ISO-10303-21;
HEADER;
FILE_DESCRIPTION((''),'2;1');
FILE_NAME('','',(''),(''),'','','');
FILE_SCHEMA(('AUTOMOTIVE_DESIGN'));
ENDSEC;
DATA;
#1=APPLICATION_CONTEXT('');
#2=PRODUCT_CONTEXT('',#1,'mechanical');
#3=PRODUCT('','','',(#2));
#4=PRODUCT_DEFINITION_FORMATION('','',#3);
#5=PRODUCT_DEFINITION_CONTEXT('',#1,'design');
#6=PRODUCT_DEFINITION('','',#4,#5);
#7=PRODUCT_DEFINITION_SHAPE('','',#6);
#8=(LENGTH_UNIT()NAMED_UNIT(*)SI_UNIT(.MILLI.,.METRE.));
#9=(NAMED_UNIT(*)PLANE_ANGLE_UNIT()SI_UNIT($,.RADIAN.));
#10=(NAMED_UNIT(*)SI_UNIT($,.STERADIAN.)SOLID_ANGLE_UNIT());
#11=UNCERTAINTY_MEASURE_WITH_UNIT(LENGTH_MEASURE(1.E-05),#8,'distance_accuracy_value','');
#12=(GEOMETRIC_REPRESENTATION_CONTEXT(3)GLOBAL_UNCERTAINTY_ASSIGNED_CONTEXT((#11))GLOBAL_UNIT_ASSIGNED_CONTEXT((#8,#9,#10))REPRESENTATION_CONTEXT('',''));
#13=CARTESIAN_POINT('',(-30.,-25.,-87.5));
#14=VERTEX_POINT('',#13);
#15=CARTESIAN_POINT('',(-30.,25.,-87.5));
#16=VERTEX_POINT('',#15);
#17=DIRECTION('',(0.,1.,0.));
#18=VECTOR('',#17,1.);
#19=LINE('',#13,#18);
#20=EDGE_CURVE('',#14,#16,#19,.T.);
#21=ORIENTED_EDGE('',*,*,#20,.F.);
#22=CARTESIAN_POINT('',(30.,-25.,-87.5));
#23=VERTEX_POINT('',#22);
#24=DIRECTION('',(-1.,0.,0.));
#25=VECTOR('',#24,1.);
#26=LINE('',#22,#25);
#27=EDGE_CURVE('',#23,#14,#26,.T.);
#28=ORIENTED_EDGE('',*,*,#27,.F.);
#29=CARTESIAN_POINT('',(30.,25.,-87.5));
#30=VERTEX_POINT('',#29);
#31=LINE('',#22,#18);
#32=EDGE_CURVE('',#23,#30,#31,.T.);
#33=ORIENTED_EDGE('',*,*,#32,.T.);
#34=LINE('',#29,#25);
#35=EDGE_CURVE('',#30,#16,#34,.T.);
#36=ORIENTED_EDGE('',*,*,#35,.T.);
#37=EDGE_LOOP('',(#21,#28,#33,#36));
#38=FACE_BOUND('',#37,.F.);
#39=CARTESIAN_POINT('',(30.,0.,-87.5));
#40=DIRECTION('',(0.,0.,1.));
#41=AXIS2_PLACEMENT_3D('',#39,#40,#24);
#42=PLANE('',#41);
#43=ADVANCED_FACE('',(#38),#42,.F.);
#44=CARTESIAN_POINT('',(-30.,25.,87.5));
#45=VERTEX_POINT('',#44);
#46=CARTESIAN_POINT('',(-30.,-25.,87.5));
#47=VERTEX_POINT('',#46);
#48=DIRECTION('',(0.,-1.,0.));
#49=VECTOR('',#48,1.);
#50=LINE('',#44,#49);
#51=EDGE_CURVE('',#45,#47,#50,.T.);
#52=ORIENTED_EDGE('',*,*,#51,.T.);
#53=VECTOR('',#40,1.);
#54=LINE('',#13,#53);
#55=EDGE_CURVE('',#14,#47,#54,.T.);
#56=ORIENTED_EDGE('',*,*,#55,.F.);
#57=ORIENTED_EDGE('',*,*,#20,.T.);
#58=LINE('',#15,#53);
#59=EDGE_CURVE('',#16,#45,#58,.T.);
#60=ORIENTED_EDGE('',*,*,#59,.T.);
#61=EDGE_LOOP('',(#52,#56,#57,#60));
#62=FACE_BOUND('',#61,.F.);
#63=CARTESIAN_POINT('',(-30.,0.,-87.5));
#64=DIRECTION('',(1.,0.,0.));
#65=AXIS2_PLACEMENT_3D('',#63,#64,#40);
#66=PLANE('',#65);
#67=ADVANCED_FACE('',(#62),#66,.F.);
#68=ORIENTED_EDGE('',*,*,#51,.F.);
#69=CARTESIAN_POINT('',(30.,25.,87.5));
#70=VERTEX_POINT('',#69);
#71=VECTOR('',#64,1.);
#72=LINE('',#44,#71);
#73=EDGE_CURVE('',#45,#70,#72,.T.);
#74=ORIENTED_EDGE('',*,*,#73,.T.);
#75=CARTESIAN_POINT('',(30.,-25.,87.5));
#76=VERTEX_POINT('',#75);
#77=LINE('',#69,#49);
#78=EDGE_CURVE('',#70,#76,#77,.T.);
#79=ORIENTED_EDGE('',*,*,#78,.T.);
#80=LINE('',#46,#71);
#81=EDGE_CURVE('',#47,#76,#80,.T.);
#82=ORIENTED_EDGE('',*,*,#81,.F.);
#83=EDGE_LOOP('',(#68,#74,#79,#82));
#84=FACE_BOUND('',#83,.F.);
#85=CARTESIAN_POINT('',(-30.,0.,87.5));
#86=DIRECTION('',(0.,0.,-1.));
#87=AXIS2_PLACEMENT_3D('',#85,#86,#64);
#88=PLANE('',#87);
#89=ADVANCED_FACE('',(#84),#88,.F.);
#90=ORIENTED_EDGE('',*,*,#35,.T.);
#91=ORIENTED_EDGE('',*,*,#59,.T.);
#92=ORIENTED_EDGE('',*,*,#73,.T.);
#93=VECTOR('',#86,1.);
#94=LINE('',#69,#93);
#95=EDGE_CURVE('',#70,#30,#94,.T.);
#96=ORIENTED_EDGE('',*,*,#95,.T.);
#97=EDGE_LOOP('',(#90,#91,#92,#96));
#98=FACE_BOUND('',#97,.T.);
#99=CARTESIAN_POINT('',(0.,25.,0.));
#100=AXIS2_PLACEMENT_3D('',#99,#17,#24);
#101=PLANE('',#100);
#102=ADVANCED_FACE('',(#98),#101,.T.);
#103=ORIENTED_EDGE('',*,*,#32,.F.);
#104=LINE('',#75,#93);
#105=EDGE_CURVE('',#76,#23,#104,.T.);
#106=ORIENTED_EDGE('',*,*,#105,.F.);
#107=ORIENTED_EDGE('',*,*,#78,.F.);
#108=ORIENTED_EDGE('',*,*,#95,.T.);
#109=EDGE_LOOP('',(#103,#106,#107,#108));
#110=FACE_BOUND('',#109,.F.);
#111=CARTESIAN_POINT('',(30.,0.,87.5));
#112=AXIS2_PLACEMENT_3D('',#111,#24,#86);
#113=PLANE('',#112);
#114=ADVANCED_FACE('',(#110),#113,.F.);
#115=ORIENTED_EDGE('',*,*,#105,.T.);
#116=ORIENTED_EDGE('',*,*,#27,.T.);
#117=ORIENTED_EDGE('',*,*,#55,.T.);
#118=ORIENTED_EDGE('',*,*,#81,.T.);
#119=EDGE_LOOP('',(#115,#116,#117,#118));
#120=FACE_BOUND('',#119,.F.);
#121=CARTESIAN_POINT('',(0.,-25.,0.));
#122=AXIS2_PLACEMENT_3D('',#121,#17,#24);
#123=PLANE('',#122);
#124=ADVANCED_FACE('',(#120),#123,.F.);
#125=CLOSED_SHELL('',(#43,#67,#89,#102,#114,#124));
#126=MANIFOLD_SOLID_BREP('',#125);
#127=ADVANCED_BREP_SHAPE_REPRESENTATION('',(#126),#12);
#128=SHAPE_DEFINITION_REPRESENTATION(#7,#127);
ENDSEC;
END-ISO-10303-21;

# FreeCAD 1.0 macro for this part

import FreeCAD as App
import Part
import Sketcher
from FreeCAD import Vector


def add_polygon(sketch, points):
    """Adds a closed chain of lines whose ends are joined by coincident constraints."""
    first, n = sketch.GeometryCount, len(points)
    for a, b in zip(points, points[1:] + points[:1]):
        sketch.addGeometry(Part.LineSegment(App.Vector(*a, 0), App.Vector(*b, 0)), False)
    for i in range(n):
        sketch.addConstraint(Sketcher.Constraint("Coincident", first + i, 2, first + (i + 1) % n, 1))

doc = App.newDocument("Part")
body = doc.addObject("PartDesign::Body", "Body")

sketch1 = body.newObject("Sketcher::SketchObject", "Sketch")
sketch1.AttachmentSupport = (doc.getObject("XZ_Plane"), [""])
sketch1.MapMode = "FlatFace"
add_polygon(sketch1, [(30, 88), (30, -88), (-30, -88), (-30, 88)])
sketch1.addConstraint([
    Sketcher.Constraint("Vertical", 0),
    Sketcher.Constraint("Horizontal", 1),
    Sketcher.Constraint("Vertical", 2),
    Sketcher.Constraint("Horizontal", 3),
    Sketcher.Constraint("Symmetric", 0, 2, 2, 2, -1, 1),
    Sketcher.Constraint("DistanceX", 1, 2, 1, 1, 60.0),
    Sketcher.Constraint("DistanceY", 0, 2, 0, 1, 175.0),
])
pad1 = body.newObject("PartDesign::Pad", "Pad")
pad1.Profile = sketch1
pad1.Length = 50
pad1.Midplane = True

doc.recompute()
